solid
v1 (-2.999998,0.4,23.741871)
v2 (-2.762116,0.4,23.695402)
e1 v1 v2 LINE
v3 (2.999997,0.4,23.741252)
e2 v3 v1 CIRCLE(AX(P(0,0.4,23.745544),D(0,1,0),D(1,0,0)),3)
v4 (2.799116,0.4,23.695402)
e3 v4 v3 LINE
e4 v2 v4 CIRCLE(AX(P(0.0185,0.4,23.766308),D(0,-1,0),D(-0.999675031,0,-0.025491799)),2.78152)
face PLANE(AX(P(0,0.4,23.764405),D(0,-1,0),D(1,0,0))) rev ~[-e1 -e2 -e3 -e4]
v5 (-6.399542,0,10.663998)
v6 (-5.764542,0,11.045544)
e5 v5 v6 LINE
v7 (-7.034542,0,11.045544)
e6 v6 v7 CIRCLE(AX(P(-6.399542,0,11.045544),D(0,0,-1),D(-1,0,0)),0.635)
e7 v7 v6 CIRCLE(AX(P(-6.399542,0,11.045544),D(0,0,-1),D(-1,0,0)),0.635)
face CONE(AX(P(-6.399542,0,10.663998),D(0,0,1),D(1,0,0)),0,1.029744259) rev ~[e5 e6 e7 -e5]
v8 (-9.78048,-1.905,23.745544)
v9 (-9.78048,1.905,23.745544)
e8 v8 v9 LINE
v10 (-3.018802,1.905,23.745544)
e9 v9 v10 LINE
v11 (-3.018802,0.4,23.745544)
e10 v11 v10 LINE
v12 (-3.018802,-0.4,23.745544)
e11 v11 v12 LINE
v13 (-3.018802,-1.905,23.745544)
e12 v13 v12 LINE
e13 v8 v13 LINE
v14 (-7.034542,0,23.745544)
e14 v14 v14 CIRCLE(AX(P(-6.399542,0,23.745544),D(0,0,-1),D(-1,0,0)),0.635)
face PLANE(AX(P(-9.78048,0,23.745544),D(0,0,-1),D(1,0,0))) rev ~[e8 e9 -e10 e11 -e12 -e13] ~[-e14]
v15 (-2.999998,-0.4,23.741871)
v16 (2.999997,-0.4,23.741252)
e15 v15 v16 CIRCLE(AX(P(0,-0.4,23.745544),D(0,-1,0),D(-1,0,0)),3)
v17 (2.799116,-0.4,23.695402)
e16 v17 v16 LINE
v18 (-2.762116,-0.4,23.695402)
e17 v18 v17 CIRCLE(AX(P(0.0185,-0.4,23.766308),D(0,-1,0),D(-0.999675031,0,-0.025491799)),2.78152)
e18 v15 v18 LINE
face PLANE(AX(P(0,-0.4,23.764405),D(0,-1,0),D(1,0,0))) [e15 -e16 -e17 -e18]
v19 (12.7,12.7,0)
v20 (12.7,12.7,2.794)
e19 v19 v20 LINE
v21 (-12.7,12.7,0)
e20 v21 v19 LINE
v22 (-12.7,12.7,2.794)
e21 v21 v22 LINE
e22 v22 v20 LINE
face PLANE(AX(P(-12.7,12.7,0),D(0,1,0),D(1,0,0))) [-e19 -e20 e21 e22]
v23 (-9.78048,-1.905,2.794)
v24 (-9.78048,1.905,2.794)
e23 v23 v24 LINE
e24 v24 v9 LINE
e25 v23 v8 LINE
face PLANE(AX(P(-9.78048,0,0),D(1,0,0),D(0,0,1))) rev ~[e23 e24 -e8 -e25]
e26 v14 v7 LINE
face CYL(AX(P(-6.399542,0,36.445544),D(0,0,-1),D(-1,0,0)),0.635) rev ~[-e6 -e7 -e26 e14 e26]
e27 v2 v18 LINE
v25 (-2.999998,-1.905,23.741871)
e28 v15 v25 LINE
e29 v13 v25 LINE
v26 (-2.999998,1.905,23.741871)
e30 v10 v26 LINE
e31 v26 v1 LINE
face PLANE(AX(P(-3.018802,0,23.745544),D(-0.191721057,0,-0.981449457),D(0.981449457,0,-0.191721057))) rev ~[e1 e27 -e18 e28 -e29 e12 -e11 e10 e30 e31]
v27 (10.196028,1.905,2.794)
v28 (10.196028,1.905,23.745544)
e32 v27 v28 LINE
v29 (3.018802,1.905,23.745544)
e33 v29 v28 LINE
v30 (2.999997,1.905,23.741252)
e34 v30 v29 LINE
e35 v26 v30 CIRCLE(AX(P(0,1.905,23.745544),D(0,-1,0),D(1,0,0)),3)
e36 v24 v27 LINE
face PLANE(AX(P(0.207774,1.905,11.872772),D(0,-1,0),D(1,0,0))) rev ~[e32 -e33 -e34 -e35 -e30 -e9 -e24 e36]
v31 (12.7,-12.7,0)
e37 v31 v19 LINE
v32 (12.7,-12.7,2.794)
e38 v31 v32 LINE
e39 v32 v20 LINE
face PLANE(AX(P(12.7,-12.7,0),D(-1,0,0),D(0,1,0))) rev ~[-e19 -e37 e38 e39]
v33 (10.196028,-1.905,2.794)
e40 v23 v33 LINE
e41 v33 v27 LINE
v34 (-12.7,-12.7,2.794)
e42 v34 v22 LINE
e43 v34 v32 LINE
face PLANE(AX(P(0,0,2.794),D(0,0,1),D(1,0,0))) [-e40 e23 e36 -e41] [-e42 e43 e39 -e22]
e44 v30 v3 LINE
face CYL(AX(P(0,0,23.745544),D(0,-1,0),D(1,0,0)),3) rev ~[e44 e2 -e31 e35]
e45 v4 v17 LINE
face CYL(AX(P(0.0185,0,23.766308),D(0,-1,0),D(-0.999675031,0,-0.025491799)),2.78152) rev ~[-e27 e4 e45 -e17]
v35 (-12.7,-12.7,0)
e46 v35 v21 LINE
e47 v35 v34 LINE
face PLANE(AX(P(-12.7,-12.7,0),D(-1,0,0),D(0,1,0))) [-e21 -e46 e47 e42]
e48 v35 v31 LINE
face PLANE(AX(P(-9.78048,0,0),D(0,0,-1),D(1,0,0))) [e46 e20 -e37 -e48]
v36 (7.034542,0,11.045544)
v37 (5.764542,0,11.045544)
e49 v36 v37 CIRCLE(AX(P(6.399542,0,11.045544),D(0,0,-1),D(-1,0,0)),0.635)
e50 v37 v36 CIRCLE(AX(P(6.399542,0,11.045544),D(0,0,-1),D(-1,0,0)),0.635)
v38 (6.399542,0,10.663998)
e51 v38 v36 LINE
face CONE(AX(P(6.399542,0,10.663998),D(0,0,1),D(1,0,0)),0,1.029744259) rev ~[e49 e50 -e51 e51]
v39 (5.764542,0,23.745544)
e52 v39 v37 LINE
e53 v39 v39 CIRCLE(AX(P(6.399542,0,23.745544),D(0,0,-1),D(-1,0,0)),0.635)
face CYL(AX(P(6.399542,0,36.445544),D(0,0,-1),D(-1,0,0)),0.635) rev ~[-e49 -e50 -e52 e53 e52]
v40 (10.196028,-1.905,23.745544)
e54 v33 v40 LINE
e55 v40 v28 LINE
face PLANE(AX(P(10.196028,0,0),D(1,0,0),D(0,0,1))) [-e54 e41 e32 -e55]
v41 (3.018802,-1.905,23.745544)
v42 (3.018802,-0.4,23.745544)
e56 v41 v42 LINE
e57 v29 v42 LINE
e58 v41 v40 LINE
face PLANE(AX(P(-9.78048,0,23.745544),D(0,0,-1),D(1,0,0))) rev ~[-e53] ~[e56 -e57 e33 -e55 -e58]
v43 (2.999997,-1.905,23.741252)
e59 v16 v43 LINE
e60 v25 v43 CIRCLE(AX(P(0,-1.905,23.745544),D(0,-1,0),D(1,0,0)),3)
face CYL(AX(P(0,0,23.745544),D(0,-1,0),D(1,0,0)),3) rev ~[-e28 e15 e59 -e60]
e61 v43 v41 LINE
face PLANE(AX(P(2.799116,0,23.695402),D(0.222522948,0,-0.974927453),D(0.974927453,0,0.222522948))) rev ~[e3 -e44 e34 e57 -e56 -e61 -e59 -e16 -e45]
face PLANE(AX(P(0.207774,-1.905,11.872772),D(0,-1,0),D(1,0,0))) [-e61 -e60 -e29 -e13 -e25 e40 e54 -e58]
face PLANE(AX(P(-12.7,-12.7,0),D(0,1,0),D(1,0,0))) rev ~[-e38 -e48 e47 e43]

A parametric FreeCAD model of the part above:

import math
import FreeCAD as App
import Part
import Sketcher
from FreeCAD import Vector
Q = App.Units.Quantity

doc = App.newDocument("Part")
params = doc.addObject("Spreadsheet::Sheet", "Params")
for row, (alias, value) in enumerate([
    ("sketch1_width", "1 in"),
    ("pad1_length", "0.11 in"),
    ("pad2_length", "0.15 in"),
    ("pocket1_length", "0.206 in"),
    ("pad3_length", "0.8 mm"),
    ("pocket2_length", "1 in"),
    ("sketch6_diameter", "0.05 in"),
    ("hole_diameter", "0.05 in"),
    ("hole_depth", "0.5 in"),
], start=1):
    params.set(f"A{row}", alias)
    params.set(f"B{row}", "=" + value)
    params.setAlias(f"B{row}", alias)

body = doc.addObject("PartDesign::Body", "Body")

# Sketch on XY plane
sketch1 = doc.addObject("Sketcher::SketchObject", "Sketch")
body.addObject(sketch1)
sketch1.AttachmentSupport = (doc.XY_Plane, [""])
sketch1.MapMode = "FlatFace"
sketch1.addGeometry([
    Part.LineSegment(Vector(-13, 13, 0), Vector(-13, -13, 0)),
    Part.LineSegment(Vector(-13, -13, 0), Vector(13, -13, 0)),
    Part.LineSegment(Vector(13, -13, 0), Vector(13, 13, 0)),
    Part.LineSegment(Vector(13, 13, 0), Vector(-13, 13, 0)),
], False)
sketch1.addConstraint([
    Sketcher.Constraint("Coincident", 0, 2, 1, 1),
    Sketcher.Constraint("Coincident", 1, 2, 2, 1),
    Sketcher.Constraint("Coincident", 2, 2, 3, 1),
    Sketcher.Constraint("Coincident", 3, 2, 0, 1),
    Sketcher.Constraint("Vertical", 0),
    Sketcher.Constraint("Horizontal", 1),
    Sketcher.Constraint("Vertical", 2),
    Sketcher.Constraint("Horizontal", 3),
    Sketcher.Constraint("Symmetric", 0, 2, 2, 2, -1, 1),
    Sketcher.Constraint("Equal", 3, 0),
    Sketcher.Constraint("DistanceX", 1, 1, 1, 2, Q("1 in")),
])
sketch1.setExpression("Constraints[10]", "Params.sketch1_width")
pad1 = doc.addObject("PartDesign::Pad", "Pad")
body.addObject(pad1)
pad1.Profile = sketch1
pad1.setExpression("Length", "Params.pad1_length")

# Sketch on XZ plane
sketch2 = doc.addObject("Sketcher::SketchObject", "Sketch001")
body.addObject(sketch2)
sketch2.AttachmentSupport = (doc.XZ_Plane, [""])
sketch2.MapMode = "FlatFace"
sketch2.addGeometry([
    Part.LineSegment(Vector(-10, 24, 0), Vector(-10, 0, 0)),
    Part.LineSegment(Vector(-10, 0, 0), Vector(10, 0, 0)),
    Part.LineSegment(Vector(10, 0, 0), Vector(10, 24, 0)),
    Part.LineSegment(Vector(10, 24, 0), Vector(-10, 24, 0)),
], False)
sketch2.addConstraint([
    Sketcher.Constraint("Coincident", 0, 2, 1, 1),
    Sketcher.Constraint("Coincident", 1, 2, 2, 1),
    Sketcher.Constraint("Coincident", 2, 2, 3, 1),
    Sketcher.Constraint("Coincident", 3, 2, 0, 1),
    Sketcher.Constraint("Vertical", 0),
    Sketcher.Constraint("Horizontal", 1),
    Sketcher.Constraint("Vertical", 2),
    Sketcher.Constraint("Horizontal", 3),
    Sketcher.Constraint("PointOnObject", 0, 2, -1),
    Sketcher.Constraint("DistanceX", 1, 1, 1, 2, Q("19.976508 mm")),
    Sketcher.Constraint("DistanceY", 0, 2, 0, 1, Q("23.745544 mm")),
    Sketcher.Constraint("DistanceX", 0, 2, -1, 1, Q("9.78048 mm")),
])
pad2 = doc.addObject("PartDesign::Pad", "Pad001")
body.addObject(pad2)
pad2.Profile = sketch2
pad2.setExpression("Length", "Params.pad2_length")
pad2.Midplane = True

# Sketch on XZ plane
sketch3 = doc.addObject("Sketcher::SketchObject", "Sketch002")
body.addObject(sketch3)
sketch3.AttachmentSupport = (doc.XZ_Plane, [""])
sketch3.MapMode = "FlatFace"
sketch3.addGeometry(Part.Circle(Vector(0, 23.7, 0), Vector(0, 0, 1), 3), False)
sketch3.addConstraint([
    Sketcher.Constraint("PointOnObject", 0, 3, -2),
    Sketcher.Constraint("Diameter", 0, Q("6 mm")),
    Sketcher.Constraint("DistanceY", -1, 1, 0, 3, Q("23.745544 mm")),
])
pocket1 = doc.addObject("PartDesign::Pocket", "Pocket")
body.addObject(pocket1)
pocket1.Profile = sketch3
pocket1.setExpression("Length", "Params.pocket1_length")
pocket1.Midplane = True

# Sketch on XZ plane
sketch4 = doc.addObject("Sketcher::SketchObject", "Sketch003")
body.addObject(sketch4)
sketch4.AttachmentSupport = (doc.XZ_Plane, [""])
sketch4.MapMode = "FlatFace"
sketch4.addGeometry(Part.Circle(Vector(0, 23.8, 0), Vector(0, 0, 1), 3), False)
sketch4.addConstraint([
    Sketcher.Constraint("PointOnObject", 0, 3, -2),
    Sketcher.Constraint("Diameter", 0, Q("6.037722 mm")),
    Sketcher.Constraint("DistanceY", -1, 1, 0, 3, Q("23.764405 mm")),
])
pad3 = doc.addObject("PartDesign::Pad", "Pad002")
body.addObject(pad3)
pad3.Profile = sketch4
pad3.setExpression("Length", "Params.pad3_length")
pad3.Midplane = True

# Sketch on XZ plane
sketch5 = doc.addObject("Sketcher::SketchObject", "Sketch004")
body.addObject(sketch5)
sketch5.AttachmentSupport = (doc.XZ_Plane, [""])
sketch5.MapMode = "FlatFace"
sketch5.addGeometry([
    Part.LineSegment(Vector(-3.018802, 23.745544, 0), Vector(-2.762116, 23.695402, 0)),
    Part.ArcOfCircle(Part.Circle(Vector(0.0185, 23.766308, 0), Vector(0, 0, 1), 2.78152), math.radians(-178.539269), math.radians(-1.460731)),
    Part.LineSegment(Vector(2.799116, 23.695402, 0), Vector(3.018802, 23.745544, 0)),
    Part.ArcOfCircle(Part.Circle(Vector(0, 23.764405, 0), Vector(0, 0, 1), 3.018861), math.radians(-0.357973), math.radians(180.357973)),
], False)
sketch5.addConstraint([
    Sketcher.Constraint("Coincident", 0, 2, 1, 1),
    Sketcher.Constraint("Coincident", 1, 2, 2, 1),
    Sketcher.Constraint("Coincident", 2, 2, 3, 1),
    Sketcher.Constraint("Coincident", 3, 2, 0, 1),
    Sketcher.Constraint("Symmetric", 2, 2, 3, 2, -2),
    Sketcher.Constraint("Horizontal", 0, 2, 1, 2),
    Sketcher.Constraint("Radius", 1, Q("2.78152 mm")),
    Sketcher.Constraint("Radius", 3, Q("3.018861 mm")),
    Sketcher.Constraint("DistanceX", -1, 1, 1, 3, Q("0.0185 mm")),
    Sketcher.Constraint("DistanceY", -1, 1, 0, 2, Q("23.695402 mm")),
    Sketcher.Constraint("DistanceX", 1, 3, 2, 2, Q("3.000302 mm")),
    Sketcher.Constraint("Distance", 0, Q("0.261538 mm")),
    Sketcher.Constraint("DistanceX", 0, 2, 1, 2, Q("5.561232 mm")),
])
pocket2 = doc.addObject("PartDesign::Pocket", "Pocket001")
body.addObject(pocket2)
pocket2.Profile = sketch5
pocket2.setExpression("Length", "Params.pocket2_length")
pocket2.Midplane = True

# Sketch on XY plane
sketch6 = doc.addObject("Sketcher::SketchObject", "Sketch005")
body.addObject(sketch6)
sketch6.AttachmentSupport = (doc.XY_Plane, [""])
sketch6.MapMode = "FlatFace"
sketch6.AttachmentOffset = App.Placement(Vector(0, 0, 23.745544), App.Rotation())
sketch6.addGeometry([
    Part.Circle(Vector(6.4, 0, 0), Vector(0, 0, 1), 0.6),
    Part.Circle(Vector(-6.4, 0, 0), Vector(0, 0, 1), 0.6),
], False)
sketch6.addConstraint([
    Sketcher.Constraint("Equal", 0, 1),
    Sketcher.Constraint("Symmetric", 0, 3, 1, 3, -1, 1),
    Sketcher.Constraint("PointOnObject", 0, 3, -1),
    Sketcher.Constraint("Diameter", 0, Q("0.05 in")),
    Sketcher.Constraint("DistanceX", -1, 1, 0, 3, Q("6.399542 mm")),
])
sketch6.setExpression("Constraints[3]", "Params.sketch6_diameter")
doc.recompute()
hole = doc.addObject("PartDesign::Hole", "Hole")
body.addObject(hole)
hole.Profile = sketch6
hole.ThreadType = "None"
hole.setExpression("Diameter", "Params.hole_diameter")
hole.DepthType = "Dimension"
hole.setExpression("Depth", "Params.hole_depth")
hole.DrillPoint = "Angled"
hole.DrillPointAngle = 118

doc.recompute()
